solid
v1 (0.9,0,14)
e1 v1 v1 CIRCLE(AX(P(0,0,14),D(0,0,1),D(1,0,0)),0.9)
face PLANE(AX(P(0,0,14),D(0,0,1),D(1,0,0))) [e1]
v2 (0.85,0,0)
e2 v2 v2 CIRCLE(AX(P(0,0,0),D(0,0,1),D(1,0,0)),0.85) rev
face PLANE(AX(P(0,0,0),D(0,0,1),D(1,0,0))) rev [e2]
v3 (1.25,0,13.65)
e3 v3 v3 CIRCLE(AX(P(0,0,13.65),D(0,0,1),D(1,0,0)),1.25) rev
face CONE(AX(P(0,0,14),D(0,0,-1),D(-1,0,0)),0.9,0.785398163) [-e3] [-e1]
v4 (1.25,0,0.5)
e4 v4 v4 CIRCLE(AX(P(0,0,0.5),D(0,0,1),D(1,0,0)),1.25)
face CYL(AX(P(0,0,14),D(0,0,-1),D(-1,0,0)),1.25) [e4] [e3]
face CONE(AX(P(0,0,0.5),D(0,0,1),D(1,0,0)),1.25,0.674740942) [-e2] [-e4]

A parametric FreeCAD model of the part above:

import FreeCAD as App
import Part
import Sketcher

V = App.Vector
Q = App.Units.Quantity


def edges_at(feature, points):
    """Names of the edges that pass closest to the given points."""
    edges = feature.Shape.Edges
    near = lambda p: min(range(len(edges)), key=lambda i: edges[i].distToShape(Part.Vertex(*p))[0])
    return sorted({f"Edge{near(p) + 1}" for p in points})

doc = App.newDocument("Part")
params = doc.addObject("Spreadsheet::Sheet", "Params")
for row, (alias, value) in enumerate([
    ("sketch1_diameter", "2.5 mm"),
    ("pad1_length", "14 mm"),
    ("chamfer_size", "0.35 mm"),
    ("chamfer2_size", "0.4 mm"),
    ("chamfer2_size2", "0.5 mm"),
], start=1):
    params.set(f"A{row}", alias)
    params.set(f"B{row}", "=" + value)
    params.setAlias(f"B{row}", alias)

body = doc.addObject("PartDesign::Body", "Body")

# Sketch on XY plane
sketch1 = doc.addObject("Sketcher::SketchObject", "Sketch")
body.addObject(sketch1)
sketch1.AttachmentSupport = (doc.XY_Plane, [""])
sketch1.MapMode = "FlatFace"
sketch1.addGeometry(Part.Circle(V(0, 0, 0), V(0, 0, 1), 1.2), False)
sketch1.addConstraint(Sketcher.Constraint("Coincident", 0, 3, -1, 1))
sketch1.addConstraint(Sketcher.Constraint("Diameter", 0, Q("2.5 mm")))
sketch1.setExpression("Constraints[1]", "Params.sketch1_diameter")
pad1 = doc.addObject("PartDesign::Pad", "Pad")
body.addObject(pad1)
pad1.Profile = sketch1
pad1.setExpression("Length", "Params.pad1_length")
doc.recompute()

chamfer = doc.addObject("PartDesign::Chamfer", "Chamfer")
body.addObject(chamfer)
chamfer.Base = (pad1, edges_at(pad1, [(-1.25, 0, 14)]))
chamfer.setExpression("Size", "Params.chamfer_size")
doc.recompute()

chamfer2 = doc.addObject("PartDesign::Chamfer", "Chamfer001")
body.addObject(chamfer2)
chamfer2.Base = (chamfer, edges_at(chamfer, [(-1.25, 0, 0)]))
chamfer2.ChamferType = "Two distances"
chamfer2.setExpression("Size", "Params.chamfer2_size")
chamfer2.setExpression("Size2", "Params.chamfer2_size2")
chamfer2.FlipDirection = True

doc.recompute()
